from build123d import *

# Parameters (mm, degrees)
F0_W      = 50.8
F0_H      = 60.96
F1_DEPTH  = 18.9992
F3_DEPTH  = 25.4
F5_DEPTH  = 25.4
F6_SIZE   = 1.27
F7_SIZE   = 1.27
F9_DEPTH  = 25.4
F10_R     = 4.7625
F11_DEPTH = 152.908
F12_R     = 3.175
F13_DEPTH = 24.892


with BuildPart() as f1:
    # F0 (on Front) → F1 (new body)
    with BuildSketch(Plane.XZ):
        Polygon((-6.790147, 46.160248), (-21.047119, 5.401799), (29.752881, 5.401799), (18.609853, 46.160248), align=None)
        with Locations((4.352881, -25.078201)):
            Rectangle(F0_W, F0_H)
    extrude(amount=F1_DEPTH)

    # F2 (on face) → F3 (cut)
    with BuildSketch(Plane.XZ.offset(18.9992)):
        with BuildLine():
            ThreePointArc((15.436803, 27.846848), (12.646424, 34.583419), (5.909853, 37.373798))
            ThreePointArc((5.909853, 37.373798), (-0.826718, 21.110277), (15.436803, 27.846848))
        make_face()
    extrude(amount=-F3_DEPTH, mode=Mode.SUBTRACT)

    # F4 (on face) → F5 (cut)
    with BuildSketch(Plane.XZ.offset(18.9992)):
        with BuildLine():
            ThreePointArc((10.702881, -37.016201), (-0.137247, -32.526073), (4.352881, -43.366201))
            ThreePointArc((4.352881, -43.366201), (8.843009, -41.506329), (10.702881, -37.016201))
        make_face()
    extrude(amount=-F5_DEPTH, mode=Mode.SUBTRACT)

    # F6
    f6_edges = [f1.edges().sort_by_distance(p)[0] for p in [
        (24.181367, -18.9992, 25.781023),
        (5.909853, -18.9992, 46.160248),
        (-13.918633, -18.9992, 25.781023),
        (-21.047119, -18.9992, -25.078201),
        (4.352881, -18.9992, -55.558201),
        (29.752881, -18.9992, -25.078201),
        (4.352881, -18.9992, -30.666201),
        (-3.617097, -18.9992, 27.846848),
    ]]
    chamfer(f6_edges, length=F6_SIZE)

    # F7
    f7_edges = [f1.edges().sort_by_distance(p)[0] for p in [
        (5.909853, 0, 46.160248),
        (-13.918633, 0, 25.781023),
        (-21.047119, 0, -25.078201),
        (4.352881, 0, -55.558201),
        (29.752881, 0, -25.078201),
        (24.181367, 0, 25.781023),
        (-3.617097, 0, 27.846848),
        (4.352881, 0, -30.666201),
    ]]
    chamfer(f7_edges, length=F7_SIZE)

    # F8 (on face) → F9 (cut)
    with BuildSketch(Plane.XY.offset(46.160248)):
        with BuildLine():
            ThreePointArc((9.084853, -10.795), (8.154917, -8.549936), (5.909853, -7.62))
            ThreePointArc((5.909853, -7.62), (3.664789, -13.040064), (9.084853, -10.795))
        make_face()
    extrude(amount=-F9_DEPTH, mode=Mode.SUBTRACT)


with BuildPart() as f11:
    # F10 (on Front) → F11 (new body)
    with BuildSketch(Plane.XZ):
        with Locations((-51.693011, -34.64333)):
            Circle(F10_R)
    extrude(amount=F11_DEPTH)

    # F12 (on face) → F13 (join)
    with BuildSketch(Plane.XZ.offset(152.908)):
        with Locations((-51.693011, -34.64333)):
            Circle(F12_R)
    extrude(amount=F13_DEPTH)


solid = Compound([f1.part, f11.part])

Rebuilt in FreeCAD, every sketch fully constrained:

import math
import FreeCAD as App
import Part
import Sketcher
Q = App.Units.Quantity


def edges_at(feature, points):
    """Names of the edges that pass closest to the given points."""
    edges = feature.Shape.Edges
    near = lambda p: min(range(len(edges)), key=lambda i: edges[i].distToShape(Part.Vertex(*p))[0])
    return sorted({f"Edge{near(p) + 1}" for p in points})

doc = App.newDocument("Part")
body = doc.addObject("PartDesign::Body", "Body")

# Sketch on XZ plane
sketch1 = body.newObject("Sketcher::SketchObject", "Sketch")
sketch1.AttachmentSupport = (doc.getObject("XZ_Plane"), [""])
sketch1.MapMode = "FlatFace"
sketch1.addGeometry(Part.LineSegment(App.Vector(-6.790147, 46.160248, 0), App.Vector(-21.047119, 5.401799, 0)), False)
sketch1.addGeometry(Part.LineSegment(App.Vector(-21.047119, 5.401799, 0), App.Vector(-21.047119, -55.558201, 0)), False)
sketch1.addGeometry(Part.LineSegment(App.Vector(-21.047119, -55.558201, 0), App.Vector(29.752881, -55.558201, 0)), False)
sketch1.addGeometry(Part.LineSegment(App.Vector(29.752881, -55.558201, 0), App.Vector(29.752881, 5.401799, 0)), False)
sketch1.addGeometry(Part.LineSegment(App.Vector(29.752881, 5.401799, 0), App.Vector(18.609853, 46.160248, 0)), False)
sketch1.addGeometry(Part.LineSegment(App.Vector(18.609853, 46.160248, 0), App.Vector(-6.790147, 46.160248, 0)), False)
sketch1.addConstraint(Sketcher.Constraint("Coincident", 0, 2, 1, 1))
sketch1.addConstraint(Sketcher.Constraint("Coincident", 1, 2, 2, 1))
sketch1.addConstraint(Sketcher.Constraint("Coincident", 2, 2, 3, 1))
sketch1.addConstraint(Sketcher.Constraint("Coincident", 3, 2, 4, 1))
sketch1.addConstraint(Sketcher.Constraint("Coincident", 4, 2, 5, 1))
sketch1.addConstraint(Sketcher.Constraint("Coincident", 5, 2, 0, 1))
sketch1.addConstraint(Sketcher.Constraint("Vertical", 1))
sketch1.addConstraint(Sketcher.Constraint("Horizontal", 2))
sketch1.addConstraint(Sketcher.Constraint("Vertical", 3))
sketch1.addConstraint(Sketcher.Constraint("Horizontal", 5))
sketch1.addConstraint(Sketcher.Constraint("Horizontal", 0, 2, 3, 2))
sketch1.addConstraint(Sketcher.Constraint("DistanceX", 2, 1, 2, 2, Q("2 in")))
sketch1.addConstraint(Sketcher.Constraint("DistanceX", 5, 2, 5, 1, Q("1 in")))
sketch1.addConstraint(Sketcher.Constraint("DistanceY", 1, 2, 1, 1, Q("2.4 in")))
sketch1.addConstraint(Sketcher.Constraint("Distance", 0, Q("1.7 in")))
sketch1.addConstraint(Sketcher.Constraint("DistanceY", -1, 1, 0, 2, Q("5.401799 mm")))
sketch1.addConstraint(Sketcher.Constraint("Distance", 4, Q("42.25421 mm")))
sketch1.addConstraint(Sketcher.Constraint("DistanceX", 0, 2, -1, 1, Q("21.047119 mm")))
pad1 = body.newObject("PartDesign::Pad", "Pad")
pad1.Profile = sketch1
pad1.Length = Q("0.748 in")

# Sketch on XZ plane
sketch2 = body.newObject("Sketcher::SketchObject", "Sketch001")
sketch2.AttachmentSupport = (doc.getObject("XZ_Plane"), [""])
sketch2.MapMode = "FlatFace"
sketch2.AttachmentOffset = App.Placement(App.Vector(0, 0, 0.748 * 25.4), App.Rotation())
sketch2.addGeometry(Part.ArcOfCircle(Part.Circle(App.Vector(5.909853, 27.846848, 0), App.Vector(0, 0, 1), 9.52695), math.radians(-0.000001), math.radians(90.000001)), False)
sketch2.addGeometry(Part.ArcOfCircle(Part.Circle(App.Vector(5.909853, 27.846848, 0), App.Vector(0, 0, 1), 9.52695), math.radians(90), math.radians(360)), False)
sketch2.addConstraint(Sketcher.Constraint("Tangent", 0, 1, 1, 2))
sketch2.addConstraint(Sketcher.Constraint("Coincident", 1, 1, 0, 2))
sketch2.addConstraint(Sketcher.Constraint("Horizontal", 1, 3, 0, 1))
sketch2.addConstraint(Sketcher.Constraint("Vertical", 0, 3, 1, 1))
sketch2.addConstraint(Sketcher.Constraint("Radius", 0, Q("9.52695 mm")))
sketch2.addConstraint(Sketcher.Constraint("DistanceY", -1, 1, 0, 3, Q("27.846848 mm")))
sketch2.addConstraint(Sketcher.Constraint("DistanceX", -1, 1, 0, 3, Q("5.909853 mm")))
pocket1 = body.newObject("PartDesign::Pocket", "Pocket")
pocket1.Profile = sketch2
pocket1.Length = Q("1 in")

# Sketch on XZ plane
sketch3 = body.newObject("Sketcher::SketchObject", "Sketch002")
sketch3.AttachmentSupport = (doc.getObject("XZ_Plane"), [""])
sketch3.MapMode = "FlatFace"
sketch3.AttachmentOffset = App.Placement(App.Vector(0, 0, 0.748 * 25.4), App.Rotation())
sketch3.addGeometry(Part.ArcOfCircle(Part.Circle(App.Vector(4.352881, -37.016201, 0), App.Vector(0, 0, 1), 6.35), math.radians(0), math.radians(270)), False)
sketch3.addGeometry(Part.ArcOfCircle(Part.Circle(App.Vector(4.352881, -37.016201, 0), App.Vector(0, 0, 1), 6.35), math.radians(-89.999998), math.radians(-0.000002)), False)
sketch3.addConstraint(Sketcher.Constraint("Tangent", 0, 1, 1, 2))
sketch3.addConstraint(Sketcher.Constraint("Coincident", 1, 1, 0, 2))
sketch3.addConstraint(Sketcher.Constraint("Horizontal", 1, 3, 0, 1))
sketch3.addConstraint(Sketcher.Constraint("Vertical", 0, 3, 1, 1))
sketch3.addConstraint(Sketcher.Constraint("Radius", 0, Q("0.25 in")))
sketch3.addConstraint(Sketcher.Constraint("DistanceY", 0, 3, -1, 1, Q("37.016201 mm")))
sketch3.addConstraint(Sketcher.Constraint("DistanceX", -1, 1, 0, 3, Q("4.352881 mm")))
pocket2 = body.newObject("PartDesign::Pocket", "Pocket001")
pocket2.Profile = sketch3
pocket2.Length = Q("1 in")
doc.recompute()

chamfer = body.newObject("PartDesign::Chamfer", "Chamfer")
chamfer.Base = (pocket2, edges_at(pocket2, [
    (24.181, -18.999, 25.781),
    (5.91, -18.999, 46.16),
    (-13.919, -18.999, 25.781),
    (-21.047, -18.999, -25.078),
    (4.353, -18.999, -55.558),
    (29.753, -18.999, -25.078),
    (-0.137, -18.999, -32.526),
    (-0.827, -18.999, 21.11),
]))
chamfer.Size = Q("0.05 in")
doc.recompute()

chamfer2 = body.newObject("PartDesign::Chamfer", "Chamfer001")
chamfer2.Base = (chamfer, edges_at(chamfer, [
    (5.91, 0, 46.16),
    (-13.919, 0, 25.781),
    (-21.047, 0, -25.078),
    (4.353, 0, -55.558),
    (29.753, 0, -25.078),
    (24.181, 0, 25.781),
    (-0.827, 0, 21.11),
    (-0.137, 0, -32.526),
]))
chamfer2.Size = Q("0.05 in")

# Sketch on XY plane
sketch4 = body.newObject("Sketcher::SketchObject", "Sketch003")
sketch4.AttachmentSupport = (doc.getObject("XY_Plane"), [""])
sketch4.MapMode = "FlatFace"
sketch4.AttachmentOffset = App.Placement(App.Vector(0, 0, 46.160248), App.Rotation())
sketch4.addGeometry(Part.ArcOfCircle(Part.Circle(App.Vector(5.909853, -10.795, 0), App.Vector(0, 0, 1), 3.175), math.radians(0.000002), math.radians(89.999998)), False)
sketch4.addGeometry(Part.ArcOfCircle(Part.Circle(App.Vector(5.909853, -10.795, 0), App.Vector(0, 0, 1), 3.175), math.radians(90), math.radians(360)), False)
sketch4.addConstraint(Sketcher.Constraint("Tangent", 0, 1, 1, 2))
sketch4.addConstraint(Sketcher.Constraint("Coincident", 1, 1, 0, 2))
sketch4.addConstraint(Sketcher.Constraint("Horizontal", 1, 3, 0, 1))
sketch4.addConstraint(Sketcher.Constraint("Vertical", 0, 3, 1, 1))
sketch4.addConstraint(Sketcher.Constraint("Radius", 0, Q("0.125 in")))
sketch4.addConstraint(Sketcher.Constraint("DistanceY", 1, 1, -1, 1, Q("0.3 in")))
sketch4.addConstraint(Sketcher.Constraint("DistanceX", -1, 1, 0, 3, Q("5.909853 mm")))
pocket3 = body.newObject("PartDesign::Pocket", "Pocket002")
pocket3.Profile = sketch4
pocket3.Length = Q("1 in")
body2 = doc.addObject("PartDesign::Body", "Body001")

# Sketch on XZ plane
sketch5 = body2.newObject("Sketcher::SketchObject", "Sketch004")
sketch5.AttachmentSupport = (doc.getObject("XZ_Plane001"), [""])
sketch5.MapMode = "FlatFace"
sketch5.addGeometry(Part.Circle(App.Vector(-51.693011, -34.64333, 0), App.Vector(0, 0, 1), 4.7625), False)
sketch5.addConstraint(Sketcher.Constraint("Diameter", 0, Q("0.375 in")))
sketch5.addConstraint(Sketcher.Constraint("DistanceX", 0, 3, -1, 1, Q("51.693011 mm")))
sketch5.addConstraint(Sketcher.Constraint("DistanceY", 0, 3, -1, 1, Q("34.64333 mm")))
pad2 = body2.newObject("PartDesign::Pad", "Pad001")
pad2.Profile = sketch5
pad2.Length = Q("6.02 in")

# Sketch on XZ plane
sketch6 = body2.newObject("Sketcher::SketchObject", "Sketch005")
sketch6.AttachmentSupport = (doc.getObject("XZ_Plane001"), [""])
sketch6.MapMode = "FlatFace"
sketch6.AttachmentOffset = App.Placement(App.Vector(0, 0, 6.02 * 25.4), App.Rotation())
sketch6.addGeometry(Part.Circle(App.Vector(-51.693011, -34.64333, 0), App.Vector(0, 0, 1), 3.175), False)
sketch6.addConstraint(Sketcher.Constraint("Diameter", 0, Q("0.25 in")))
sketch6.addConstraint(Sketcher.Constraint("DistanceX", 0, 3, -1, 1, Q("51.693011 mm")))
sketch6.addConstraint(Sketcher.Constraint("DistanceY", 0, 3, -1, 1, Q("34.64333 mm")))
pad3 = body2.newObject("PartDesign::Pad", "Pad002")
pad3.Profile = sketch6
pad3.Length = Q("0.98 in")

doc.recompute()
